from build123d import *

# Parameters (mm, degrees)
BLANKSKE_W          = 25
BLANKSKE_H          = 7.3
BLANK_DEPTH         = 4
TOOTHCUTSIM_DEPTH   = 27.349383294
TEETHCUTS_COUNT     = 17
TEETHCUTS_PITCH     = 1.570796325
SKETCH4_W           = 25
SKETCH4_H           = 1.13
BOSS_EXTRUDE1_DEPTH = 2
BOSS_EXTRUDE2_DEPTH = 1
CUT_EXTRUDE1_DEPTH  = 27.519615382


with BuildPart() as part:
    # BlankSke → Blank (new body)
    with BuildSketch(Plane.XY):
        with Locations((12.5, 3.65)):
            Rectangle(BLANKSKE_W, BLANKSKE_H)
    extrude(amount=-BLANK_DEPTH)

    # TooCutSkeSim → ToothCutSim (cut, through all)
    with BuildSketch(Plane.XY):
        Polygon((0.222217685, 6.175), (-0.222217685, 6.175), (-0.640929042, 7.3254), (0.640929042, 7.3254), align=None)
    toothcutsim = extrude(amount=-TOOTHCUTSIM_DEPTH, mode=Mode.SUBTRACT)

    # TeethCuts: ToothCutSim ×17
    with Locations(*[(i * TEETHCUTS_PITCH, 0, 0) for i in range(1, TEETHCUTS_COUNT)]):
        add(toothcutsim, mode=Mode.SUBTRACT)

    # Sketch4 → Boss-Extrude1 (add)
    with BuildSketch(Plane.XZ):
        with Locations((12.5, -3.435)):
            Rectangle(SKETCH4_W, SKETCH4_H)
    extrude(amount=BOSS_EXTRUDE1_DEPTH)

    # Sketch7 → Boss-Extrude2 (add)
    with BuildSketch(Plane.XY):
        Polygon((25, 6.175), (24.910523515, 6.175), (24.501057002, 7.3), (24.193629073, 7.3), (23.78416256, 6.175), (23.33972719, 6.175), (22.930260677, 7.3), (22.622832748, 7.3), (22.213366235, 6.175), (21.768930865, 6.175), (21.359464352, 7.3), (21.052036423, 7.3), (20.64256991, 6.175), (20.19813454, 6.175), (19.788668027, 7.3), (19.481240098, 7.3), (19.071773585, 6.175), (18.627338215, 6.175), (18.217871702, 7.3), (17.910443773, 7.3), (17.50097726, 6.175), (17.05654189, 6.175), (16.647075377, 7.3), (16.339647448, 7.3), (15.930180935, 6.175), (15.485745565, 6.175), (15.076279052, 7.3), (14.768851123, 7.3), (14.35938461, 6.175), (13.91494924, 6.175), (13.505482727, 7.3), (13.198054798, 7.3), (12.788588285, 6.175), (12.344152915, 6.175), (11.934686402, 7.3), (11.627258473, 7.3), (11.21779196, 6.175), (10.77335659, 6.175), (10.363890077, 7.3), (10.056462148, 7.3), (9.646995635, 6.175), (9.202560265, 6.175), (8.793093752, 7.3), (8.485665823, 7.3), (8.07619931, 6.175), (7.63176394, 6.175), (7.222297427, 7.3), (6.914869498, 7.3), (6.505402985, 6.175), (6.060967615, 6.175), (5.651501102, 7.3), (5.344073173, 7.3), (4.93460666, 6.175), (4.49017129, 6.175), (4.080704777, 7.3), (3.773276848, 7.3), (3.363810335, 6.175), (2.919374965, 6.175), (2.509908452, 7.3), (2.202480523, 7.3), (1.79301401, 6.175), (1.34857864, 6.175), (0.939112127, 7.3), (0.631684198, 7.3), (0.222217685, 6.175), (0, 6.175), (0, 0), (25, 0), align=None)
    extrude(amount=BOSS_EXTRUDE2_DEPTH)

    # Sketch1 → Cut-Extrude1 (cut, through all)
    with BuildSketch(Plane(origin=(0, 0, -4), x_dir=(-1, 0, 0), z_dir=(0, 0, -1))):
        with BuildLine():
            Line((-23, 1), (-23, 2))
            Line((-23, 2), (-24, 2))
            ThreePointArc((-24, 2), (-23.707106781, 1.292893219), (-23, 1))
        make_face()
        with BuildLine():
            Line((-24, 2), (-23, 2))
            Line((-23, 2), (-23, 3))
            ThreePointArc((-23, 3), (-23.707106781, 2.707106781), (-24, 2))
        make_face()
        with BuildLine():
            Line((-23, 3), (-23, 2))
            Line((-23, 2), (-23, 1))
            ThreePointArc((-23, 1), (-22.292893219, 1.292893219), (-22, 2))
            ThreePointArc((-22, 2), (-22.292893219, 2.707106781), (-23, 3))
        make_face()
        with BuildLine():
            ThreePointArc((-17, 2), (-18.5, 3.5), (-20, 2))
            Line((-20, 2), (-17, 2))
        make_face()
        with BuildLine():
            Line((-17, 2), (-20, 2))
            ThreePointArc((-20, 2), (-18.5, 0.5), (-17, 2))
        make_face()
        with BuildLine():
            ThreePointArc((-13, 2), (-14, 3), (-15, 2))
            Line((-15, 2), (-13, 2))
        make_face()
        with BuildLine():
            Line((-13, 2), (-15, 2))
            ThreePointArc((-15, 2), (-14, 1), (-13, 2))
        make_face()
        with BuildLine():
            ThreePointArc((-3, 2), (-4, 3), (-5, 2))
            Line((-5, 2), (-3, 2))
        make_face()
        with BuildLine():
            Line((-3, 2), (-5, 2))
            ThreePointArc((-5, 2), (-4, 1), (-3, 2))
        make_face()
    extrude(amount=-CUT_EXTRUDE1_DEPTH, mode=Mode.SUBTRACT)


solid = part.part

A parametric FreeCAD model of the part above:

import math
import FreeCAD as App
import Part
import Sketcher

V = App.Vector
Q = App.Units.Quantity


def add_polygon(sketch, points):
    """Adds a closed chain of lines whose ends are joined by coincident constraints."""
    first, n = sketch.GeometryCount, len(points)
    for a, b in zip(points, points[1:] + points[:1]):
        sketch.addGeometry(Part.LineSegment(App.Vector(*a, 0), App.Vector(*b, 0)), False)
    for i in range(n):
        sketch.addConstraint(Sketcher.Constraint("Coincident", first + i, 2, first + (i + 1) % n, 1))

doc = App.newDocument("Part")
body = doc.addObject("PartDesign::Body", "Body")

# Sketch on XY plane
sketch1 = body.newObject("Sketcher::SketchObject", "Sketch")
sketch1.AttachmentSupport = (doc.getObject("XY_Plane"), [""])
sketch1.MapMode = "FlatFace"
add_polygon(sketch1, [(0, 7.3), (0, 0), (25, 0), (25, 7.3)])  # lines 0-3
sketch1.addConstraint([
    Sketcher.Constraint("Vertical", 0),
    Sketcher.Constraint("Horizontal", 1),
    Sketcher.Constraint("Vertical", 2),
    Sketcher.Constraint("Horizontal", 3),
    Sketcher.Constraint("Coincident", 0, 2, -1, 1),
    Sketcher.Constraint("DistanceX", 1, 1, 1, 2, 25.0),
    Sketcher.Constraint("DistanceY", 0, 2, 0, 1, 7.3),
])
pad1 = body.newObject("PartDesign::Pad", "Pad")
pad1.Profile = sketch1
pad1.Length = 4
pad1.Reversed = True

# Sketch on XY plane
sketch2 = body.newObject("Sketcher::SketchObject", "Sketch001")
sketch2.AttachmentSupport = (doc.getObject("XY_Plane"), [""])
sketch2.MapMode = "FlatFace"
add_polygon(sketch2, [(-0.222218, 6.175), (0.222218, 6.175), (0.640929, 7.3254), (-0.640929, 7.3254)])  # lines 0-3
sketch2.addConstraint([
    Sketcher.Constraint("Horizontal", 0),
    Sketcher.Constraint("Horizontal", 2),
    Sketcher.Constraint("Equal", 1, 3),
    Sketcher.Constraint("Angle", 1, Q("70 deg")),
    Sketcher.Constraint("DistanceY", -1, 1, 0, 2, 6.175),
    Sketcher.Constraint("DistanceX", 2, 2, 2, 1, 1.281858),
    Sketcher.Constraint("DistanceY", -1, 1, 1, 2, 7.3254),
    Sketcher.Constraint("DistanceX", -1, 1, 1, 2, 0.640929),
])
pocket1 = body.newObject("PartDesign::Pocket", "Pocket")
pocket1.Profile = sketch2
pocket1.Type = "ThroughAll"
doc.recompute()

linearpattern = body.newObject("PartDesign::LinearPattern", "LinearPattern")
linearpattern.Originals = [pocket1]
linearpattern.Direction = (doc.getObject("X_Axis"), [""])
linearpattern.Mode = "offset"
linearpattern.Offset = 1.570796
linearpattern.Occurrences = 17
body.Tip = linearpattern

# Sketch on XZ plane
sketch3 = body.newObject("Sketcher::SketchObject", "Sketch002")
sketch3.AttachmentSupport = (doc.getObject("XZ_Plane"), [""])
sketch3.MapMode = "FlatFace"
add_polygon(sketch3, [(0, -2.87), (0, -4), (25, -4), (25, -2.87)])  # lines 0-3
sketch3.addConstraint([
    Sketcher.Constraint("Vertical", 0),
    Sketcher.Constraint("Horizontal", 1),
    Sketcher.Constraint("Vertical", 2),
    Sketcher.Constraint("Horizontal", 3),
    Sketcher.Constraint("PointOnObject", 0, 2, -2),
    Sketcher.Constraint("DistanceX", 1, 1, 1, 2, 25.0),
    Sketcher.Constraint("DistanceY", 0, 2, -1, 1, 4.0),
    Sketcher.Constraint("DistanceY", 0, 2, 0, 1, 1.13),
])
pad2 = body.newObject("PartDesign::Pad", "Pad001")
pad2.Profile = sketch3
pad2.Length = 2

# Sketch on XY plane
sketch4 = body.newObject("Sketcher::SketchObject", "Sketch003")
sketch4.AttachmentSupport = (doc.getObject("XY_Plane"), [""])
sketch4.MapMode = "FlatFace"
add_polygon(sketch4, [(25, 6.175), (24.910524, 6.175), (24.501057, 7.3), (24.193629, 7.3), (23.784163, 6.175), (23.339727, 6.175), (22.930261, 7.3), (22.622833, 7.3), (22.213366, 6.175), (21.768931, 6.175), (21.359464, 7.3), (21.052036, 7.3), (20.64257, 6.175), (20.198135, 6.175), (19.788668, 7.3), (19.48124, 7.3), (19.071774, 6.175), (18.627338, 6.175), (18.217872, 7.3), (17.910444, 7.3), (17.500977, 6.175), (17.056542, 6.175), (16.647075, 7.3), (16.339647, 7.3), (15.930181, 6.175), (15.485746, 6.175), (15.076279, 7.3), (14.768851, 7.3), (14.359385, 6.175), (13.914949, 6.175), (13.505483, 7.3), (13.198055, 7.3), (12.788588, 6.175), (12.344153, 6.175), (11.934686, 7.3), (11.627258, 7.3), (11.217792, 6.175), (10.773357, 6.175), (10.36389, 7.3), (10.056462, 7.3), (9.646996, 6.175), (9.20256, 6.175), (8.793094, 7.3), (8.485666, 7.3), (8.076199, 6.175), (7.631764, 6.175), (7.222297, 7.3), (6.914869, 7.3), (6.505403, 6.175), (6.060968, 6.175), (5.651501, 7.3), (5.344073, 7.3), (4.934607, 6.175), (4.490171, 6.175), (4.080705, 7.3), (3.773277, 7.3), (3.36381, 6.175), (2.919375, 6.175), (2.509908, 7.3), (2.202481, 7.3), (1.793014, 6.175), (1.348579, 6.175), (0.939112, 7.3), (0.631684, 7.3), (0.222218, 6.175), (0, 6.175), (0, 0), (25, 0)])  # lines 0-67
sketch4.addConstraint([
    Sketcher.Constraint("Horizontal", 0),
    Sketcher.Constraint("Horizontal", 2),
    Sketcher.Constraint("Horizontal", 4),
    Sketcher.Constraint("Horizontal", 6),
    Sketcher.Constraint("Horizontal", 8),
    Sketcher.Constraint("Horizontal", 10),
    Sketcher.Constraint("Horizontal", 12),
    Sketcher.Constraint("Horizontal", 14),
    Sketcher.Constraint("Horizontal", 16),
    Sketcher.Constraint("Horizontal", 18),
    Sketcher.Constraint("Horizontal", 20),
    Sketcher.Constraint("Horizontal", 22),
    Sketcher.Constraint("Horizontal", 24),
    Sketcher.Constraint("Horizontal", 26),
    Sketcher.Constraint("Horizontal", 28),
    Sketcher.Constraint("Horizontal", 30),
    Sketcher.Constraint("Horizontal", 32),
    Sketcher.Constraint("Horizontal", 34),
    Sketcher.Constraint("Horizontal", 36),
    Sketcher.Constraint("Horizontal", 38),
    Sketcher.Constraint("Horizontal", 40),
    Sketcher.Constraint("Horizontal", 42),
    Sketcher.Constraint("Horizontal", 44),
    Sketcher.Constraint("Horizontal", 46),
    Sketcher.Constraint("Horizontal", 48),
    Sketcher.Constraint("Horizontal", 50),
    Sketcher.Constraint("Horizontal", 52),
    Sketcher.Constraint("Horizontal", 54),
    Sketcher.Constraint("Horizontal", 56),
    Sketcher.Constraint("Horizontal", 58),
    Sketcher.Constraint("Horizontal", 60),
    Sketcher.Constraint("Horizontal", 62),
    Sketcher.Constraint("Horizontal", 64),
    Sketcher.Constraint("Vertical", 65),
    Sketcher.Constraint("Horizontal", 66),
    Sketcher.Constraint("Vertical", 67),
    Sketcher.Constraint("Coincident", 65, 2, -1, 1),
    Sketcher.Constraint("Parallel", 1, 5),
    Sketcher.Constraint("Parallel", 3, 7),
    Sketcher.Constraint("Parallel", 5, 9),
    Sketcher.Constraint("Parallel", 7, 11),
    Sketcher.Constraint("Parallel", 9, 13),
    Sketcher.Constraint("Parallel", 11, 15),
    Sketcher.Constraint("Parallel", 13, 17),
    Sketcher.Constraint("Parallel", 15, 19),
    Sketcher.Constraint("Parallel", 17, 21),
    Sketcher.Constraint("Parallel", 19, 23),
    Sketcher.Constraint("Parallel", 21, 25),
    Sketcher.Constraint("Parallel", 23, 27),
    Sketcher.Constraint("Parallel", 25, 29),
    Sketcher.Constraint("Parallel", 27, 31),
    Sketcher.Constraint("Parallel", 29, 33),
    Sketcher.Constraint("Parallel", 31, 35),
    Sketcher.Constraint("Parallel", 33, 37),
    Sketcher.Constraint("Parallel", 35, 39),
    Sketcher.Constraint("Parallel", 37, 41),
    Sketcher.Constraint("Parallel", 39, 43),
    Sketcher.Constraint("Parallel", 41, 45),
    Sketcher.Constraint("Parallel", 43, 47),
    Sketcher.Constraint("Parallel", 45, 49),
    Sketcher.Constraint("Parallel", 47, 51),
    Sketcher.Constraint("Parallel", 49, 53),
    Sketcher.Constraint("Parallel", 51, 55),
    Sketcher.Constraint("Parallel", 53, 57),
    Sketcher.Constraint("Parallel", 55, 59),
    Sketcher.Constraint("Parallel", 57, 61),
    Sketcher.Constraint("Parallel", 59, 63),
    Sketcher.Constraint("Horizontal", 0, 2, 3, 2),
    Sketcher.Constraint("Horizontal", 2, 2, 5, 2),
    Sketcher.Constraint("Horizontal", 4, 2, 7, 2),
    Sketcher.Constraint("Horizontal", 6, 2, 9, 2),
    Sketcher.Constraint("Horizontal", 8, 2, 11, 2),
    Sketcher.Constraint("Horizontal", 10, 2, 13, 2),
    Sketcher.Constraint("Horizontal", 12, 2, 15, 2),
    Sketcher.Constraint("Horizontal", 14, 2, 17, 2),
    Sketcher.Constraint("Horizontal", 16, 2, 19, 2),
    Sketcher.Constraint("Horizontal", 18, 2, 21, 2),
    Sketcher.Constraint("Horizontal", 20, 2, 23, 2),
    Sketcher.Constraint("Horizontal", 22, 2, 25, 2),
    Sketcher.Constraint("Horizontal", 24, 2, 27, 2),
    Sketcher.Constraint("Horizontal", 26, 2, 29, 2),
    Sketcher.Constraint("Horizontal", 28, 2, 31, 2),
    Sketcher.Constraint("Horizontal", 30, 2, 33, 2),
    Sketcher.Constraint("Horizontal", 32, 2, 35, 2),
    Sketcher.Constraint("Horizontal", 34, 2, 37, 2),
    Sketcher.Constraint("Horizontal", 36, 2, 39, 2),
    Sketcher.Constraint("Horizontal", 38, 2, 41, 2),
    Sketcher.Constraint("Horizontal", 40, 2, 43, 2),
    Sketcher.Constraint("Horizontal", 42, 2, 45, 2),
    Sketcher.Constraint("Horizontal", 44, 2, 47, 2),
    Sketcher.Constraint("Horizontal", 46, 2, 49, 2),
    Sketcher.Constraint("Horizontal", 48, 2, 51, 2),
    Sketcher.Constraint("Horizontal", 50, 2, 53, 2),
    Sketcher.Constraint("Horizontal", 52, 2, 55, 2),
    Sketcher.Constraint("Horizontal", 54, 2, 57, 2),
    Sketcher.Constraint("Horizontal", 56, 2, 59, 2),
    Sketcher.Constraint("Horizontal", 58, 2, 61, 2),
    Sketcher.Constraint("Horizontal", 60, 2, 63, 2),
    Sketcher.Constraint("Equal", 2, 6),
    Sketcher.Constraint("Equal", 4, 8),
    Sketcher.Constraint("Equal", 6, 10),
    Sketcher.Constraint("Equal", 8, 12),
    Sketcher.Constraint("Equal", 10, 14),
    Sketcher.Constraint("Equal", 12, 16),
    Sketcher.Constraint("Equal", 14, 18),
    Sketcher.Constraint("Equal", 16, 20),
    Sketcher.Constraint("Equal", 18, 22),
    Sketcher.Constraint("Equal", 20, 24),
    Sketcher.Constraint("Equal", 22, 26),
    Sketcher.Constraint("Equal", 24, 28),
    Sketcher.Constraint("Equal", 26, 30),
    Sketcher.Constraint("Equal", 28, 32),
    Sketcher.Constraint("Equal", 30, 34),
    Sketcher.Constraint("Equal", 32, 36),
    Sketcher.Constraint("Equal", 34, 38),
    Sketcher.Constraint("Equal", 36, 40),
    Sketcher.Constraint("Equal", 38, 42),
    Sketcher.Constraint("Equal", 40, 44),
    Sketcher.Constraint("Equal", 42, 46),
    Sketcher.Constraint("Equal", 44, 48),
    Sketcher.Constraint("Equal", 46, 50),
    Sketcher.Constraint("Equal", 48, 52),
    Sketcher.Constraint("Equal", 50, 54),
    Sketcher.Constraint("Equal", 52, 56),
    Sketcher.Constraint("Equal", 54, 58),
    Sketcher.Constraint("Equal", 56, 60),
    Sketcher.Constraint("Equal", 58, 62),
    Sketcher.Constraint("Equal", 1, 3),
    Sketcher.Constraint("DistanceX", 66, 1, 66, 2, 25.0),
    Sketcher.Constraint("Angle", 1, Q("110 deg")),
    Sketcher.Constraint("DistanceY", -1, 1, 1, 2, 7.3),
    Sketcher.Constraint("DistanceY", 65, 2, 65, 1, 6.175),
    Sketcher.Constraint("DistanceX", -1, 1, 43, 2, 8.076199),
    Sketcher.Constraint("DistanceX", -1, 1, 49, 2, 5.651501),
    Sketcher.Constraint("DistanceX", 0, 2, 0, 1, 0.089476),
])
pad3 = body.newObject("PartDesign::Pad", "Pad002")
pad3.Profile = sketch4
pad3.Length = 1

# Sketch on XY plane
sketch5 = body.newObject("Sketcher::SketchObject", "Sketch004")
sketch5.AttachmentSupport = (doc.getObject("XY_Plane"), [""])
sketch5.MapMode = "FlatFace"
sketch5.AttachmentOffset = App.Placement(V(0, 0, -4), App.Rotation())
sketch5.addGeometry([
    Part.ArcOfCircle(Part.Circle(V(23, 2, 0), V(0, 0, 1), 1), math.radians(-180), math.radians(-90)),  # 0
    Part.ArcOfCircle(Part.Circle(V(23, 2, 0), V(0, 0, 1), 1), math.radians(90), math.radians(180)),  # 1
    Part.ArcOfCircle(Part.Circle(V(23, 2, 0), V(0, 0, 1), 1), math.radians(0), math.radians(90)),  # 2
    Part.ArcOfCircle(Part.Circle(V(23, 2, 0), V(0, 0, 1), 1), math.radians(-90), math.radians(0)),  # 3
    Part.Circle(V(18.5, 2, 0), V(0, 0, 1), 1.5),  # 4
    Part.Circle(V(14, 2, 0), V(0, 0, 1), 1),  # 5
    Part.Circle(V(4, 2, 0), V(0, 0, 1), 1),  # 6
], False)
sketch5.addConstraint([
    Sketcher.Constraint("Tangent", 0, 1, 1, 2),
    Sketcher.Constraint("Tangent", 1, 1, 2, 2),
    Sketcher.Constraint("Tangent", 2, 1, 3, 2),
    Sketcher.Constraint("Tangent", 3, 1, 0, 2),
    Sketcher.Constraint("Equal", 0, 1),
    Sketcher.Constraint("Equal", 3, 5),
    Sketcher.Constraint("Equal", 5, 6),
    Sketcher.Constraint("Horizontal", 3, 3, 4, 3),
    Sketcher.Constraint("Horizontal", 4, 3, 5, 3),
    Sketcher.Constraint("Horizontal", 5, 3, 6, 3),
    Sketcher.Constraint("Horizontal", 6, 3, 0, 1),
    Sketcher.Constraint("Horizontal", 0, 1, 2, 1),
    Sketcher.Constraint("Vertical", 3, 3, 1, 1),
    Sketcher.Constraint("Vertical", 1, 1, 3, 1),
    Sketcher.Constraint("Diameter", 4, 3.0),
    Sketcher.Constraint("Diameter", 5, 2.0),
    Sketcher.Constraint("DistanceX", -1, 1, 0, 3, 23.0),
    Sketcher.Constraint("DistanceY", -1, 1, 0, 3, 2.0),
    Sketcher.Constraint("DistanceX", -1, 1, 5, 3, 14.0),
    Sketcher.Constraint("DistanceX", -1, 1, 6, 3, 4.0),
    Sketcher.Constraint("DistanceX", -1, 1, 4, 3, 18.5),
])
pocket2 = body.newObject("PartDesign::Pocket", "Pocket001")
pocket2.Profile = sketch5
pocket2.Type = "ThroughAll"
pocket2.Reversed = True

doc.recompute()
